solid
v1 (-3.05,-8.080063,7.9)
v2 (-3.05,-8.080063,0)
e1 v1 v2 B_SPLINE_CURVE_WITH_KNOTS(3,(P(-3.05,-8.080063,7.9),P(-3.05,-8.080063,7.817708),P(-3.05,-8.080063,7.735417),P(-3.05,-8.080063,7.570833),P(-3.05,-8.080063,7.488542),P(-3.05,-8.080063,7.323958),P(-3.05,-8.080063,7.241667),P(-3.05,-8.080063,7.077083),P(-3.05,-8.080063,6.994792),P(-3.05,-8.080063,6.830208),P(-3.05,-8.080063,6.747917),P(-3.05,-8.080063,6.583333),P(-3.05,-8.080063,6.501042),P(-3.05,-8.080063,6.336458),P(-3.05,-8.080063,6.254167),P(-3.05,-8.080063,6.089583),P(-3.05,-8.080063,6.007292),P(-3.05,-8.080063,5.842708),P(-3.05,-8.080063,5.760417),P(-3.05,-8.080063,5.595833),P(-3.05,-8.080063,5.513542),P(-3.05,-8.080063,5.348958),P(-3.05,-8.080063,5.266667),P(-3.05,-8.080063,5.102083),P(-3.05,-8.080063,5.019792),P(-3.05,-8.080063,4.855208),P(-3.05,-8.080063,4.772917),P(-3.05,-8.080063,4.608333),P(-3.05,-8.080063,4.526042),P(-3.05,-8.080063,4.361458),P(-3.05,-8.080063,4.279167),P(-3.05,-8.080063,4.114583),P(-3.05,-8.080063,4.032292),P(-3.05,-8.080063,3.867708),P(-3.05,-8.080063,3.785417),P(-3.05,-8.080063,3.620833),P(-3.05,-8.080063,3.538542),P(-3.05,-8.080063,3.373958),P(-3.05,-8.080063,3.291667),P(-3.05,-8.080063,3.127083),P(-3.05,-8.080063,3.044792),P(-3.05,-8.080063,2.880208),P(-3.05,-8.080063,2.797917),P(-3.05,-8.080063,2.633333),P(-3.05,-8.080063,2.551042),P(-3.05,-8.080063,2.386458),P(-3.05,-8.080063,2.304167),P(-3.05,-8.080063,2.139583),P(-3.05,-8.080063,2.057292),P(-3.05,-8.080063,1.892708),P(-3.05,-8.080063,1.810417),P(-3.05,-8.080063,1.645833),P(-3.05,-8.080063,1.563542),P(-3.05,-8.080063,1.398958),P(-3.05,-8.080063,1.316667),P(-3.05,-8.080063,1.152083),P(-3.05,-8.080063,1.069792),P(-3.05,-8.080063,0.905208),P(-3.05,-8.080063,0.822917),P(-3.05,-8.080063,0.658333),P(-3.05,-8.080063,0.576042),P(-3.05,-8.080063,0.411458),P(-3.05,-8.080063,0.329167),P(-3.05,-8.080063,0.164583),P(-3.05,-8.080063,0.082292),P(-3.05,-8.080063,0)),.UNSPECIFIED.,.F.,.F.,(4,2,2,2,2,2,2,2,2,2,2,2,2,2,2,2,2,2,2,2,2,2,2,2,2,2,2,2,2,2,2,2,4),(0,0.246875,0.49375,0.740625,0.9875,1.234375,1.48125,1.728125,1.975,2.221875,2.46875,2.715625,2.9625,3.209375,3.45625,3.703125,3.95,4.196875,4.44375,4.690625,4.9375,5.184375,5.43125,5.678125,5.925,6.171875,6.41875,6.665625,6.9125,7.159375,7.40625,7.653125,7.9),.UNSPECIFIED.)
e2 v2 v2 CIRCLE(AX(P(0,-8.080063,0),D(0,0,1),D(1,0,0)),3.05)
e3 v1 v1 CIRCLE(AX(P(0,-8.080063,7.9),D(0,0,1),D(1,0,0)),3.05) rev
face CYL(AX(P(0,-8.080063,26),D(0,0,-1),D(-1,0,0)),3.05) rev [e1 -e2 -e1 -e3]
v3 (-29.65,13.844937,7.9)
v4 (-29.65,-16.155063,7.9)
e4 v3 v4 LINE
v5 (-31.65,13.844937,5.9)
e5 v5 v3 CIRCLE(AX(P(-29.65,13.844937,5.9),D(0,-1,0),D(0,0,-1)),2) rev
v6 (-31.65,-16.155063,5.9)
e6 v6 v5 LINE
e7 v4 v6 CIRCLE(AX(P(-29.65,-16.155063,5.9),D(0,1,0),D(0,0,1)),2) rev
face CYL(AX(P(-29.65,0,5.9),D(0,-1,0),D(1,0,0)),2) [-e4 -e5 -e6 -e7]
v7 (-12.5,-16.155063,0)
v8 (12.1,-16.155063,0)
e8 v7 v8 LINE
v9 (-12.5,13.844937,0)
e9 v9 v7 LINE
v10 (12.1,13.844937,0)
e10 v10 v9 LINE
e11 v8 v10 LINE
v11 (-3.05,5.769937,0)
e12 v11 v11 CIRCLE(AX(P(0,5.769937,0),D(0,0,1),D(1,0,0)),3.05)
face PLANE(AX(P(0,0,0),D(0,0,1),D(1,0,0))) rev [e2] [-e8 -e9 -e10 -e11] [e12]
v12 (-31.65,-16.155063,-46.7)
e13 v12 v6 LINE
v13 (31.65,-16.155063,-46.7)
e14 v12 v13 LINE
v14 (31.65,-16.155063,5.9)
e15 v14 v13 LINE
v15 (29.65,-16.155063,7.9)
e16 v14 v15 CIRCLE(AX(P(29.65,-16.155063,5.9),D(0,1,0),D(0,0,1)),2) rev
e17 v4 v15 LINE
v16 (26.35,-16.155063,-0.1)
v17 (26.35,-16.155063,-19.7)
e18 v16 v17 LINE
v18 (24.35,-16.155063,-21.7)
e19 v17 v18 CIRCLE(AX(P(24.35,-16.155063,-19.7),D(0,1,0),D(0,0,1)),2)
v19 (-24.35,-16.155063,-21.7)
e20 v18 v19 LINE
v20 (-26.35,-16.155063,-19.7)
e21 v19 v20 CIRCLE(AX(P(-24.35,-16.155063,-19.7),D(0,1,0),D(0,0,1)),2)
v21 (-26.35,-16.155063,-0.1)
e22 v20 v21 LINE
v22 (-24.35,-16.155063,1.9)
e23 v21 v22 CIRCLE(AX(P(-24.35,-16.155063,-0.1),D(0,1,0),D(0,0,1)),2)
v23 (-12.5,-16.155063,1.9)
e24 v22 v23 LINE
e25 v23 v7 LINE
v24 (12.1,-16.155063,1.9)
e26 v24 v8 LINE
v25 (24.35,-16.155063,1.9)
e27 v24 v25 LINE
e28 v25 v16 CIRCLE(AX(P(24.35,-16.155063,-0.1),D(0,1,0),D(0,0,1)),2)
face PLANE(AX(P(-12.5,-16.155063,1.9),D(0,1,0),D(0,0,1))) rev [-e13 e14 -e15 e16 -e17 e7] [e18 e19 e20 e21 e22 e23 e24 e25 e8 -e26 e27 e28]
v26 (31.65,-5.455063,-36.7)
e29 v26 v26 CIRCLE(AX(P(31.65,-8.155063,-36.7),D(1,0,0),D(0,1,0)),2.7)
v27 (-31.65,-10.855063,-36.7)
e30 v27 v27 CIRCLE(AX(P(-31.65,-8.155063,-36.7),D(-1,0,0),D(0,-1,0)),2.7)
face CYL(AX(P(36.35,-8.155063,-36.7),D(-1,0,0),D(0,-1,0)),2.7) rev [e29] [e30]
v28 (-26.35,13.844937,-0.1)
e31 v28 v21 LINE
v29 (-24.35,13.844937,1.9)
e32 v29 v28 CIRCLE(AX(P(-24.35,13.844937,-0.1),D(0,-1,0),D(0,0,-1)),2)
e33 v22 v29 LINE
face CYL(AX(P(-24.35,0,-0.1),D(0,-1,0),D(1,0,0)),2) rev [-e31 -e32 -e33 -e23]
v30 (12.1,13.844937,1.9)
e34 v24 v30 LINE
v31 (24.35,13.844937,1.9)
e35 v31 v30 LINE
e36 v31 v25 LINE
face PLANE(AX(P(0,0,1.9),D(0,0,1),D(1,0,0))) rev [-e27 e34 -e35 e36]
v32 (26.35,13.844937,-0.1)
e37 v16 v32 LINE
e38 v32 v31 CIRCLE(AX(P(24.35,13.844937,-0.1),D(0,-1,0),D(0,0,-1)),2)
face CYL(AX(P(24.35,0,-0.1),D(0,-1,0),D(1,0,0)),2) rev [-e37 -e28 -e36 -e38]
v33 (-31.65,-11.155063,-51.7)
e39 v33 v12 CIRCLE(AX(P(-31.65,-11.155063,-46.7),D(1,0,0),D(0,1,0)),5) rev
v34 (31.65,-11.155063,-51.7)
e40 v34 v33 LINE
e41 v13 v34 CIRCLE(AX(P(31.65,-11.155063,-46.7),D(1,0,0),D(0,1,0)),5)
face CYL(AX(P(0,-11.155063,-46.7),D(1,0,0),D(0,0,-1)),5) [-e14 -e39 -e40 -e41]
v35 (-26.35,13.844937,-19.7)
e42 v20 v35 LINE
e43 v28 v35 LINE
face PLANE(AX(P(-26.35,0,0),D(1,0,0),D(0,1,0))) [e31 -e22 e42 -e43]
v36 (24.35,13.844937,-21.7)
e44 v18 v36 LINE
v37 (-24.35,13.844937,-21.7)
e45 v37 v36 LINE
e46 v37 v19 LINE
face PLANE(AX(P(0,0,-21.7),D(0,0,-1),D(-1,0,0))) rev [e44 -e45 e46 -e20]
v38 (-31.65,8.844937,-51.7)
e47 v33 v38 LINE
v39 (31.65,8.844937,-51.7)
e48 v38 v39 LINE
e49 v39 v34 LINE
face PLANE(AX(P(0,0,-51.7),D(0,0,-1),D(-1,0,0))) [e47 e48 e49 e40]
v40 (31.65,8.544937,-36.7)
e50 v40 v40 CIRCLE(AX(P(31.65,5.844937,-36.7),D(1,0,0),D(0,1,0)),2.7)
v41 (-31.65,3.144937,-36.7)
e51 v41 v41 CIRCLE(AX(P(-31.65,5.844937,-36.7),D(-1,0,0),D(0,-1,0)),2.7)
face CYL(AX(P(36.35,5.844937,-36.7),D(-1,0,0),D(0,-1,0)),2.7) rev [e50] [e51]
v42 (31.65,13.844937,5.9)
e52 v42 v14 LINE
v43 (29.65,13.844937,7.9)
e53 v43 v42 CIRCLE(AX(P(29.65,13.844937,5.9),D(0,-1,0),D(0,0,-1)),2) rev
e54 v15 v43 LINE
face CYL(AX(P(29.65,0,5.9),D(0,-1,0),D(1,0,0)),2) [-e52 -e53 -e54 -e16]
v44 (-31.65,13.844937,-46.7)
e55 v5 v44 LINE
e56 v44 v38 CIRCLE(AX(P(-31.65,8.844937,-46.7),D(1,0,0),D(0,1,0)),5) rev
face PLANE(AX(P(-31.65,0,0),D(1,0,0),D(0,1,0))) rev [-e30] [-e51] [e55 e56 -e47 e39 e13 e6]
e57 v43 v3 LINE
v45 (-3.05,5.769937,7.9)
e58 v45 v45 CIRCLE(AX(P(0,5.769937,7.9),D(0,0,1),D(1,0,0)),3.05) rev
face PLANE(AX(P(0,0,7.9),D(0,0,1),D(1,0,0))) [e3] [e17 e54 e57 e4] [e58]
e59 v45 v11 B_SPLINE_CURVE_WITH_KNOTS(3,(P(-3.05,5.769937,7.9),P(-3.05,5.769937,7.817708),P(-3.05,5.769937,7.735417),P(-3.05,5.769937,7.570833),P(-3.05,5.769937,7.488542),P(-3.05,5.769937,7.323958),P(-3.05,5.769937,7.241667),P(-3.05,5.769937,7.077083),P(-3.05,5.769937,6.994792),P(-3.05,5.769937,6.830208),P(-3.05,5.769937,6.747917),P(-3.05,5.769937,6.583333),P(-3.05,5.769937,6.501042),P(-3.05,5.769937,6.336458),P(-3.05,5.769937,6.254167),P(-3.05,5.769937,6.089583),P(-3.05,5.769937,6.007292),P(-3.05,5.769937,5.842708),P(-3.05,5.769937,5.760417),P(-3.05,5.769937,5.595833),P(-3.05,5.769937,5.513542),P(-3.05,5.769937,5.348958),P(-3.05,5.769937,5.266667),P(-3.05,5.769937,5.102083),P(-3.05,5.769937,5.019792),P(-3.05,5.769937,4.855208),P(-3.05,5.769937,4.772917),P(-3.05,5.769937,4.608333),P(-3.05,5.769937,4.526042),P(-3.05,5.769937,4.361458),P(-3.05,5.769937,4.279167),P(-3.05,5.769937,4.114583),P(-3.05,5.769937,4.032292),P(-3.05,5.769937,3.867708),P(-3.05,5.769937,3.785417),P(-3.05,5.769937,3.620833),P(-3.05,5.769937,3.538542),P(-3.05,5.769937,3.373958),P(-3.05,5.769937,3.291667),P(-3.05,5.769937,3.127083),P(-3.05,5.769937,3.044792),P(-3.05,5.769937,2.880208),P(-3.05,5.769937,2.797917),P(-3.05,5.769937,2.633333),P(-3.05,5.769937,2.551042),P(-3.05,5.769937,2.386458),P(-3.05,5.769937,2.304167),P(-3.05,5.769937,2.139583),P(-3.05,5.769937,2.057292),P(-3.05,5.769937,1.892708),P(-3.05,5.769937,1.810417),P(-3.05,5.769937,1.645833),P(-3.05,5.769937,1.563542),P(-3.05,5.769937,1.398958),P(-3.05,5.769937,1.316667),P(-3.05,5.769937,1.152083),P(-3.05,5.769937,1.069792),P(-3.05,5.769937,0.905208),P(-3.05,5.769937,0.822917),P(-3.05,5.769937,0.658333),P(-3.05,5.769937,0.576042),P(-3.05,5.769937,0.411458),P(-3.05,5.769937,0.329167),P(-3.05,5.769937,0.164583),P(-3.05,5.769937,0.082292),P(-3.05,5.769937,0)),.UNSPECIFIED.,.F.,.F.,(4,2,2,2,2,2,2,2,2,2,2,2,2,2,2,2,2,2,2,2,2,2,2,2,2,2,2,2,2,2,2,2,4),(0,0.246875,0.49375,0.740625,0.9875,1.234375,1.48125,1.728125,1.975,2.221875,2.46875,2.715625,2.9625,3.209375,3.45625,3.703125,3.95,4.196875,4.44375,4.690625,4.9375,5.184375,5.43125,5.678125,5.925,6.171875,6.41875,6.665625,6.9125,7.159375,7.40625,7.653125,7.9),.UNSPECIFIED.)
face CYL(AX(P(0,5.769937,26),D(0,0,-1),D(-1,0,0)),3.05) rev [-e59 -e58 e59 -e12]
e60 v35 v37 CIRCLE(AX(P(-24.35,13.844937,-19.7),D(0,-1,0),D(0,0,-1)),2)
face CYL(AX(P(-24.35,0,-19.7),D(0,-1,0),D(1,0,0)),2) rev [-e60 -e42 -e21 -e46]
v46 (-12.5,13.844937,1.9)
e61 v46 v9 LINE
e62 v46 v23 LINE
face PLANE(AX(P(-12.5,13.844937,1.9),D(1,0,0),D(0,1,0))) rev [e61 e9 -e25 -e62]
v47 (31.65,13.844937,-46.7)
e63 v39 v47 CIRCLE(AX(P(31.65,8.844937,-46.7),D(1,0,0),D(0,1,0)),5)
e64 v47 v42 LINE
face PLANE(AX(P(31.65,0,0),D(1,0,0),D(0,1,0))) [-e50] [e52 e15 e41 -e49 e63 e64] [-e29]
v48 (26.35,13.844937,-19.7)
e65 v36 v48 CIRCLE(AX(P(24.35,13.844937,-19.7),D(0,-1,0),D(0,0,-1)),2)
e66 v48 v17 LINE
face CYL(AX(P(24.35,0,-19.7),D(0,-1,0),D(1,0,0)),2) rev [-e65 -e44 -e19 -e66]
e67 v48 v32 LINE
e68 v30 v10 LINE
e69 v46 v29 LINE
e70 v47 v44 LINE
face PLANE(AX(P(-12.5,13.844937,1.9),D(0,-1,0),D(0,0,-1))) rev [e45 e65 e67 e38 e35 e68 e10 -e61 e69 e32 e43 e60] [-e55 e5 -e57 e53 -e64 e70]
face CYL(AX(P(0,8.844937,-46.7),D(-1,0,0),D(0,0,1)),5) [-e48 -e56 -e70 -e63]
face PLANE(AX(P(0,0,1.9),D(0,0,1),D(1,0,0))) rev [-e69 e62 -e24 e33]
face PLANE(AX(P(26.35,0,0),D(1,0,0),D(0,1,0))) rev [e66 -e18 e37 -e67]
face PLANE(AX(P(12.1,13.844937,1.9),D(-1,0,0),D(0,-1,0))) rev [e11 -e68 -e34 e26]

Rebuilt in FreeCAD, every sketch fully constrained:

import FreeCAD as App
import Part
import Sketcher
Q = App.Units.Quantity


def edges_at(feature, points):
    """Names of the edges that pass closest to the given points."""
    edges = feature.Shape.Edges
    near = lambda p: min(range(len(edges)), key=lambda i: edges[i].distToShape(Part.Vertex(*p))[0])
    return sorted({f"Edge{near(p) + 1}" for p in points})

doc = App.newDocument("Part")
body = doc.addObject("PartDesign::Body", "Body")

sketch1 = body.newObject("Sketcher::SketchObject", "Sketch")
sketch1.AttachmentSupport = (doc.getObject("XY_Plane"), [""])
sketch1.MapMode = "FlatFace"
sketch1.addGeometry([
    Part.LineSegment(App.Vector(-12, 14, 0), App.Vector(-12, -16, 0)),
    Part.LineSegment(App.Vector(-12, -16, 0), App.Vector(12, -16, 0)),
    Part.LineSegment(App.Vector(12, -16, 0), App.Vector(12, 14, 0)),
    Part.LineSegment(App.Vector(12, 14, 0), App.Vector(-12, 14, 0)),
], False)
sketch1.addConstraint([
    Sketcher.Constraint("Coincident", 0, 2, 1, 1),
    Sketcher.Constraint("Coincident", 1, 2, 2, 1),
    Sketcher.Constraint("Coincident", 2, 2, 3, 1),
    Sketcher.Constraint("Coincident", 3, 2, 0, 1),
    Sketcher.Constraint("Vertical", 0),
    Sketcher.Constraint("Horizontal", 1),
    Sketcher.Constraint("Vertical", 2),
    Sketcher.Constraint("Horizontal", 3),
    Sketcher.Constraint("DistanceY", 0, 2, 0, 1, Q("30 mm")),
    Sketcher.Constraint("DistanceX", 1, 1, 1, 2, Q("24.6 mm")),
    Sketcher.Constraint("DistanceX", 0, 2, -1, 1, Q("12.5 mm")),
    Sketcher.Constraint("DistanceY", 0, 2, -1, 1, Q("16.155063 mm")),
])
pad1 = body.newObject("PartDesign::Pad", "Pad")
pad1.Profile = sketch1
pad1.Length = 1.9

sketch2 = body.newObject("Sketcher::SketchObject", "Sketch001")
sketch2.AttachmentSupport = (doc.getObject("XY_Plane"), [""])
sketch2.MapMode = "FlatFace"
sketch2.AttachmentOffset = App.Placement(App.Vector(0, 0, 1.9), App.Rotation())
sketch2.addGeometry([
    Part.LineSegment(App.Vector(-26, 14, 0), App.Vector(-26, -16, 0)),
    Part.LineSegment(App.Vector(-26, -16, 0), App.Vector(26, -16, 0)),
    Part.LineSegment(App.Vector(26, -16, 0), App.Vector(26, 14, 0)),
    Part.LineSegment(App.Vector(26, 14, 0), App.Vector(-26, 14, 0)),
], False)
sketch2.addConstraint([
    Sketcher.Constraint("Coincident", 0, 2, 1, 1),
    Sketcher.Constraint("Coincident", 1, 2, 2, 1),
    Sketcher.Constraint("Coincident", 2, 2, 3, 1),
    Sketcher.Constraint("Coincident", 3, 2, 0, 1),
    Sketcher.Constraint("Vertical", 0),
    Sketcher.Constraint("Horizontal", 1),
    Sketcher.Constraint("Vertical", 2),
    Sketcher.Constraint("Horizontal", 3),
    Sketcher.Constraint("DistanceY", 0, 2, 0, 1, Q("30 mm")),
    Sketcher.Constraint("DistanceX", 1, 1, 1, 2, Q("52.7 mm")),
    Sketcher.Constraint("DistanceX", 0, 2, -1, 1, Q("26.35 mm")),
    Sketcher.Constraint("DistanceY", 0, 2, -1, 1, Q("16.155063 mm")),
])
pad2 = body.newObject("PartDesign::Pad", "Pad001")
pad2.Profile = sketch2
pad2.Length = 6

sketch3 = body.newObject("Sketcher::SketchObject", "Sketch002")
sketch3.AttachmentSupport = (doc.getObject("YZ_Plane"), [""])
sketch3.MapMode = "FlatFace"
sketch3.AttachmentOffset = App.Placement(App.Vector(0, 0, -26.35), App.Rotation())
sketch3.addGeometry([
    Part.LineSegment(App.Vector(14, -22, 0), App.Vector(-16, -22, 0)),
    Part.LineSegment(App.Vector(-16, -22, 0), App.Vector(-16, 8, 0)),
    Part.LineSegment(App.Vector(-16, 8, 0), App.Vector(14, 8, 0)),
    Part.LineSegment(App.Vector(14, 8, 0), App.Vector(14, -22, 0)),
], False)
sketch3.addConstraint([
    Sketcher.Constraint("Coincident", 0, 2, 1, 1),
    Sketcher.Constraint("Coincident", 1, 2, 2, 1),
    Sketcher.Constraint("Coincident", 2, 2, 3, 1),
    Sketcher.Constraint("Coincident", 3, 2, 0, 1),
    Sketcher.Constraint("Horizontal", 0),
    Sketcher.Constraint("Vertical", 1),
    Sketcher.Constraint("Horizontal", 2),
    Sketcher.Constraint("Vertical", 3),
    Sketcher.Constraint("DistanceX", 0, 2, 0, 1, Q("30 mm")),
    Sketcher.Constraint("DistanceY", 1, 1, 1, 2, Q("29.6 mm")),
    Sketcher.Constraint("DistanceY", 0, 2, -1, 1, Q("21.7 mm")),
    Sketcher.Constraint("DistanceX", 0, 2, -1, 1, Q("16.155063 mm")),
])
pad3 = body.newObject("PartDesign::Pad", "Pad002")
pad3.Profile = sketch3
pad3.Length = 5.3
pad3.Reversed = True

sketch4 = body.newObject("Sketcher::SketchObject", "Sketch003")
sketch4.AttachmentSupport = (doc.getObject("YZ_Plane"), [""])
sketch4.MapMode = "FlatFace"
sketch4.AttachmentOffset = App.Placement(App.Vector(0, 0, 26.35), App.Rotation())
sketch4.addGeometry([
    Part.LineSegment(App.Vector(14, 8, 0), App.Vector(-16, 8, 0)),
    Part.LineSegment(App.Vector(-16, 8, 0), App.Vector(-16, -22, 0)),
    Part.LineSegment(App.Vector(-16, -22, 0), App.Vector(14, -22, 0)),
    Part.LineSegment(App.Vector(14, -22, 0), App.Vector(14, 8, 0)),
], False)
sketch4.addConstraint([
    Sketcher.Constraint("Coincident", 0, 2, 1, 1),
    Sketcher.Constraint("Coincident", 1, 2, 2, 1),
    Sketcher.Constraint("Coincident", 2, 2, 3, 1),
    Sketcher.Constraint("Coincident", 3, 2, 0, 1),
    Sketcher.Constraint("Horizontal", 0),
    Sketcher.Constraint("Vertical", 1),
    Sketcher.Constraint("Horizontal", 2),
    Sketcher.Constraint("Vertical", 3),
    Sketcher.Constraint("DistanceX", 0, 2, 0, 1, Q("30 mm")),
    Sketcher.Constraint("DistanceY", 1, 2, 1, 1, Q("29.6 mm")),
    Sketcher.Constraint("DistanceY", -1, 1, 0, 2, Q("7.9 mm")),
    Sketcher.Constraint("DistanceX", 0, 2, -1, 1, Q("16.155063 mm")),
])
pad4 = body.newObject("PartDesign::Pad", "Pad003")
pad4.Profile = sketch4
pad4.Length = 5.3

sketch5 = body.newObject("Sketcher::SketchObject", "Sketch004")
sketch5.AttachmentSupport = (doc.getObject("XY_Plane"), [""])
sketch5.MapMode = "FlatFace"
sketch5.AttachmentOffset = App.Placement(App.Vector(0, 0, -21.7), App.Rotation())
sketch5.addGeometry([
    Part.LineSegment(App.Vector(32, 14, 0), App.Vector(32, -16, 0)),
    Part.LineSegment(App.Vector(32, -16, 0), App.Vector(-32, -16, 0)),
    Part.LineSegment(App.Vector(-32, -16, 0), App.Vector(-32, 14, 0)),
    Part.LineSegment(App.Vector(-32, 14, 0), App.Vector(32, 14, 0)),
], False)
sketch5.addConstraint([
    Sketcher.Constraint("Coincident", 0, 2, 1, 1),
    Sketcher.Constraint("Coincident", 1, 2, 2, 1),
    Sketcher.Constraint("Coincident", 2, 2, 3, 1),
    Sketcher.Constraint("Coincident", 3, 2, 0, 1),
    Sketcher.Constraint("Vertical", 0),
    Sketcher.Constraint("Horizontal", 1),
    Sketcher.Constraint("Vertical", 2),
    Sketcher.Constraint("Horizontal", 3),
    Sketcher.Constraint("DistanceY", 0, 2, 0, 1, Q("30 mm")),
    Sketcher.Constraint("DistanceX", 1, 2, 1, 1, Q("63.3 mm")),
    Sketcher.Constraint("DistanceX", -1, 1, 0, 2, Q("31.65 mm")),
    Sketcher.Constraint("DistanceY", 0, 2, -1, 1, Q("16.155063 mm")),
])
pad5 = body.newObject("PartDesign::Pad", "Pad004")
pad5.Profile = sketch5
pad5.Length = 3
pad5.Reversed = True
doc.recompute()

fillet = body.newObject("PartDesign::Fillet", "Fillet")
fillet.Base = (pad5, edges_at(pad5, [
    (-26.35, -1.155, 1.9),
    (26.35, -1.155, 1.9),
    (-26.35, -1.155, -21.7),
    (-31.65, -1.155, 7.9),
    (26.35, -1.155, -21.7),
    (31.65, -1.155, 7.9),
]))
fillet.Radius = 2

sketch6 = body.newObject("Sketcher::SketchObject", "Sketch005")
sketch6.AttachmentSupport = (doc.getObject("XY_Plane"), [""])
sketch6.MapMode = "FlatFace"
sketch6.AttachmentOffset = App.Placement(App.Vector(0, 0, -24.7), App.Rotation())
sketch6.addGeometry([
    Part.LineSegment(App.Vector(32, 14, 0), App.Vector(32, -16, 0)),
    Part.LineSegment(App.Vector(32, -16, 0), App.Vector(-32, -16, 0)),
    Part.LineSegment(App.Vector(-32, -16, 0), App.Vector(-32, 14, 0)),
    Part.LineSegment(App.Vector(-32, 14, 0), App.Vector(32, 14, 0)),
], False)
sketch6.addConstraint([
    Sketcher.Constraint("Coincident", 0, 2, 1, 1),
    Sketcher.Constraint("Coincident", 1, 2, 2, 1),
    Sketcher.Constraint("Coincident", 2, 2, 3, 1),
    Sketcher.Constraint("Coincident", 3, 2, 0, 1),
    Sketcher.Constraint("Vertical", 0),
    Sketcher.Constraint("Horizontal", 1),
    Sketcher.Constraint("Vertical", 2),
    Sketcher.Constraint("Horizontal", 3),
    Sketcher.Constraint("DistanceY", 0, 2, 0, 1, Q("30 mm")),
    Sketcher.Constraint("DistanceX", 1, 2, 1, 1, Q("63.3 mm")),
    Sketcher.Constraint("DistanceX", -1, 1, 0, 2, Q("31.65 mm")),
    Sketcher.Constraint("DistanceY", 0, 2, -1, 1, Q("16.155063 mm")),
])
pad6 = body.newObject("PartDesign::Pad", "Pad005")
pad6.Profile = sketch6
pad6.Length = 27
pad6.Reversed = True
doc.recompute()

fillet2 = body.newObject("PartDesign::Fillet", "Fillet001")
fillet2.Base = (pad6, edges_at(pad6, [(0, -16.155, -51.7), (0, 13.845, -51.7)]))
fillet2.Radius = 5

sketch7 = body.newObject("Sketcher::SketchObject", "Sketch006")
sketch7.AttachmentSupport = (doc.getObject("XY_Plane"), [""])
sketch7.MapMode = "FlatFace"
sketch7.addGeometry([
    Part.Circle(App.Vector(0, 5.8, 0), App.Vector(0, 0, 1), 3),
    Part.Circle(App.Vector(0, -8.1, 0), App.Vector(0, 0, 1), 3),
], False)
sketch7.addConstraint([
    Sketcher.Constraint("Equal", 0, 1),
    Sketcher.Constraint("PointOnObject", 0, 3, -2),
    Sketcher.Constraint("PointOnObject", 1, 3, -2),
    Sketcher.Constraint("Diameter", 0, Q("6.1 mm")),
    Sketcher.Constraint("DistanceY", 1, 3, 0, 3, Q("13.85 mm")),
    Sketcher.Constraint("DistanceY", -1, 1, 0, 3, Q("5.769937 mm")),
])
pocket1 = body.newObject("PartDesign::Pocket", "Pocket")
pocket1.Profile = sketch7
pocket1.Length = 26
pocket1.Reversed = True

sketch8 = body.newObject("Sketcher::SketchObject", "Sketch007")
sketch8.AttachmentSupport = (doc.getObject("YZ_Plane"), [""])
sketch8.MapMode = "FlatFace"
sketch8.AttachmentOffset = App.Placement(App.Vector(0, 0, -31.65), App.Rotation())
sketch8.addGeometry([
    Part.Circle(App.Vector(5.8, -36.7, 0), App.Vector(0, 0, 1), 2.7),
    Part.Circle(App.Vector(-8.2, -36.7, 0), App.Vector(0, 0, 1), 2.7),
], False)
sketch8.addConstraint([
    Sketcher.Constraint("Equal", 0, 1),
    Sketcher.Constraint("Horizontal", 0, 3, 1, 3),
    Sketcher.Constraint("Diameter", 0, Q("5.4 mm")),
    Sketcher.Constraint("DistanceX", 1, 3, 0, 3, Q("14 mm")),
    Sketcher.Constraint("DistanceY", 0, 3, -1, 1, Q("36.7 mm")),
    Sketcher.Constraint("DistanceX", -1, 1, 0, 3, Q("5.844937 mm")),
])
pocket2 = body.newObject("PartDesign::Pocket", "Pocket001")
pocket2.Profile = sketch8
pocket2.Length = 68
pocket2.Reversed = True

doc.recompute()
